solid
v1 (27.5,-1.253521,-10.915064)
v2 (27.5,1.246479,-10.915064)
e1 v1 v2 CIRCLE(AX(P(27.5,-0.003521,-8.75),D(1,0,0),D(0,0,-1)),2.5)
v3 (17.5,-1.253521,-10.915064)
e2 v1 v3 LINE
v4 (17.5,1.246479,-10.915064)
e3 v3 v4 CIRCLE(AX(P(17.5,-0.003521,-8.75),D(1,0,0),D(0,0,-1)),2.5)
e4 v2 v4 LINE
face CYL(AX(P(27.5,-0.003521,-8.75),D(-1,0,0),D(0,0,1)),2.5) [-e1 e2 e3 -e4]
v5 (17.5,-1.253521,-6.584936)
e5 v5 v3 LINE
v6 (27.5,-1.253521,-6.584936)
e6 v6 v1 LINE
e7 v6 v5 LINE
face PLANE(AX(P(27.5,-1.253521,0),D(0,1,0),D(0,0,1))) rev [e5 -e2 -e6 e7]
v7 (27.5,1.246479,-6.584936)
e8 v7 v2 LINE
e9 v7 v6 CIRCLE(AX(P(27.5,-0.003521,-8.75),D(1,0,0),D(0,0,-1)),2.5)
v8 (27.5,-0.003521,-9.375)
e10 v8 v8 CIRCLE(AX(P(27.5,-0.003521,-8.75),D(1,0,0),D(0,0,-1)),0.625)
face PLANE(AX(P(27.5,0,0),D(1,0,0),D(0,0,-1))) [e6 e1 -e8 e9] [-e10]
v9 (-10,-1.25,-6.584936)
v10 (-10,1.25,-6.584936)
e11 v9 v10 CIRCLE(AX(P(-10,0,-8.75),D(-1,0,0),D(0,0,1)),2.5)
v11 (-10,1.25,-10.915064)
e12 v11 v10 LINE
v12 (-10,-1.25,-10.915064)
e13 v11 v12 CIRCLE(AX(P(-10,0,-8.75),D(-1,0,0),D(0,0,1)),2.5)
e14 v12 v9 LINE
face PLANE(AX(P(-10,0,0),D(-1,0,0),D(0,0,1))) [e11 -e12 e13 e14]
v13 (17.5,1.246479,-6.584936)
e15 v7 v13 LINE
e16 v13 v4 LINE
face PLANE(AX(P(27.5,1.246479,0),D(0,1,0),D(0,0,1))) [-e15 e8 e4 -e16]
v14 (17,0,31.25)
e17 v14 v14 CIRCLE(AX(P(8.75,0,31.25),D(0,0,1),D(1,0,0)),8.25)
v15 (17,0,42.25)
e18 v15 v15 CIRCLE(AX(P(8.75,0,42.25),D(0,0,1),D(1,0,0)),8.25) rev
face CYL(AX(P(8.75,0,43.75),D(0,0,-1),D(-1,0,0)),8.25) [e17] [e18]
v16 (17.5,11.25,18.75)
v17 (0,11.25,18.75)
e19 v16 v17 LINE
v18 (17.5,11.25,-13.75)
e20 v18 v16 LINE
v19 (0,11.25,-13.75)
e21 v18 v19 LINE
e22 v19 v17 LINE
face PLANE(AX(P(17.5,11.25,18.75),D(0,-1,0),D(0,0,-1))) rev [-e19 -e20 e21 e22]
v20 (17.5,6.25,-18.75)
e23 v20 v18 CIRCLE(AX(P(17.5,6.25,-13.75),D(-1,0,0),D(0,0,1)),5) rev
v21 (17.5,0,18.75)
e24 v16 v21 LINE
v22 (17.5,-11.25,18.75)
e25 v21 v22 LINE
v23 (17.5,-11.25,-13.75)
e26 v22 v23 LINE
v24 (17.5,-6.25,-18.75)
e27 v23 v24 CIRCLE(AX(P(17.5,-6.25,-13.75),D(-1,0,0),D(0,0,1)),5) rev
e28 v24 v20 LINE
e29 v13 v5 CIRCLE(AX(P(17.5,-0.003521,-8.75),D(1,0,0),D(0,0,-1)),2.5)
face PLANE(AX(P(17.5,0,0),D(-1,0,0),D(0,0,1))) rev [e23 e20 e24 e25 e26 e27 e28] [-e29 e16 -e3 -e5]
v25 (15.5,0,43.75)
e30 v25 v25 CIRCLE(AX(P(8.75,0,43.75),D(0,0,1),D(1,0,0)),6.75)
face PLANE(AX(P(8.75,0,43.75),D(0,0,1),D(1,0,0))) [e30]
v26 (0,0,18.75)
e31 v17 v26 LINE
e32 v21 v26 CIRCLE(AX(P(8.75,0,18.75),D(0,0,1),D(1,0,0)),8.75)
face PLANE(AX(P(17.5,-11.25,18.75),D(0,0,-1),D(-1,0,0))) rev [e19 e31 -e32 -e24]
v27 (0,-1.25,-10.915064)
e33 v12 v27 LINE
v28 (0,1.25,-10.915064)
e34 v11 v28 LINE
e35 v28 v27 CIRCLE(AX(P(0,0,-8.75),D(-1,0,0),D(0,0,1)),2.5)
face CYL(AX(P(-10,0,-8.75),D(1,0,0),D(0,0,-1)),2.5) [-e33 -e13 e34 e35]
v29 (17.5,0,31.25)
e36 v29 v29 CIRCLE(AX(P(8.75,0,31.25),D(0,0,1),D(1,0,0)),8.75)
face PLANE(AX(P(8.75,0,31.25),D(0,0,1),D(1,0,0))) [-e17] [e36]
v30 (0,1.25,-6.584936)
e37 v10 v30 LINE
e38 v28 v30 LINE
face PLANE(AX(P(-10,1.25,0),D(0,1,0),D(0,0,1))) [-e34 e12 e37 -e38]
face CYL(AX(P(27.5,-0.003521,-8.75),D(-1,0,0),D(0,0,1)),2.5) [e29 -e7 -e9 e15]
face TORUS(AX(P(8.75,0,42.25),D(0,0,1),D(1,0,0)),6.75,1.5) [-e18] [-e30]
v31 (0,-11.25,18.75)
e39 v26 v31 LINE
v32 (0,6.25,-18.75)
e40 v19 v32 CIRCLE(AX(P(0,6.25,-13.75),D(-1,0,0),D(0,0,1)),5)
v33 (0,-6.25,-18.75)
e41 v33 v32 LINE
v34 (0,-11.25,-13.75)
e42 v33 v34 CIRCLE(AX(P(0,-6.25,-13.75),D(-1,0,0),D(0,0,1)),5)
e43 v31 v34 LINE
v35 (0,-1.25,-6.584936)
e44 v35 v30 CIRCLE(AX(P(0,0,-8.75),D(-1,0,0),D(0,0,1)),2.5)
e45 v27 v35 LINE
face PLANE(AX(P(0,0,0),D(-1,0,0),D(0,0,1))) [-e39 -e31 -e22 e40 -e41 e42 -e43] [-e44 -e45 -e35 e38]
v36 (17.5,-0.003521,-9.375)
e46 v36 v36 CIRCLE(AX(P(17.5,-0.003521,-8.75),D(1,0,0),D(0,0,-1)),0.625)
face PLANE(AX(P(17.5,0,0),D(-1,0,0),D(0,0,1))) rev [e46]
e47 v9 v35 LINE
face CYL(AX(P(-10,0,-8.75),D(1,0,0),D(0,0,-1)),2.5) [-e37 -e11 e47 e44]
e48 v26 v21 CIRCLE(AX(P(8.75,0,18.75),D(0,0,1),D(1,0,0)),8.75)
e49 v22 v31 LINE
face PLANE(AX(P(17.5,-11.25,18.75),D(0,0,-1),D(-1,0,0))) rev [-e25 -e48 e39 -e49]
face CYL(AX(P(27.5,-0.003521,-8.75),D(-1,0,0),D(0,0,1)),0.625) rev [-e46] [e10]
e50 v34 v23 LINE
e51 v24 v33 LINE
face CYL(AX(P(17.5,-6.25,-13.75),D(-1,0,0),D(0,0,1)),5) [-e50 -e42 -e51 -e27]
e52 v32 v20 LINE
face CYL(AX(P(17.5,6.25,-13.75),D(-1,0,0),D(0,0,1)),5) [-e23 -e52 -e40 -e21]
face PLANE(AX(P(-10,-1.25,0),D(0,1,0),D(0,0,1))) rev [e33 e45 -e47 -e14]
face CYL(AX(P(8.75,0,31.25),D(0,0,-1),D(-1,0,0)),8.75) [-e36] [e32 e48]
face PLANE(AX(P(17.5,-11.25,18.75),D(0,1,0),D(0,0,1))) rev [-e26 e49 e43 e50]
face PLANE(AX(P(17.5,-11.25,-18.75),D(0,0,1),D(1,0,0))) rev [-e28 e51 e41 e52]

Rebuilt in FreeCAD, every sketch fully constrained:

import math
import FreeCAD as App
import Part
import Sketcher

V = App.Vector
Q = App.Units.Quantity


def edges_at(feature, points):
    """Names of the edges that pass closest to the given points."""
    edges = feature.Shape.Edges
    near = lambda p: min(range(len(edges)), key=lambda i: edges[i].distToShape(Part.Vertex(*p))[0])
    return sorted({f"Edge{near(p) + 1}" for p in points})

doc = App.newDocument("Part")
params = doc.addObject("Spreadsheet::Sheet", "Params")
for row, (alias, value) in enumerate([
    ("sketch1_width", "22.5 mm"),
    ("sketch1_height", "37.5 mm"),
    ("pad1_length", "17.5 mm"),
    ("sketch2_radius", "2.5 mm"),
    ("sketch2_diameter", "1.25 mm"),
    ("pad2_length", "10 mm"),
    ("sketch3_diameter", "17.5 mm"),
    ("pad3_length", "12.5 mm"),
    ("sketch4_diameter", "16.5 mm"),
    ("pad4_length", "12.5 mm"),
    ("fillet_radius", "1.5 mm"),
    ("fillet2_radius", "5 mm"),
    ("sketch5_radius", "2.5 mm"),
    ("pad5_length", "10 mm"),
], start=1):
    params.set(f"A{row}", alias)
    params.set(f"B{row}", "=" + value)
    params.setAlias(f"B{row}", alias)

body = doc.addObject("PartDesign::Body", "Body")

# Sketch on YZ plane
sketch1 = body.newObject("Sketcher::SketchObject", "Sketch")
sketch1.AttachmentSupport = (doc.getObject("YZ_Plane"), [""])
sketch1.MapMode = "FlatFace"
sketch1.addGeometry(Part.LineSegment(V(11.25, 18.75, 0), V(-11.25, 18.75, 0)), False)
sketch1.addGeometry(Part.LineSegment(V(-11.25, 18.75, 0), V(-11.25, -18.75, 0)), False)
sketch1.addGeometry(Part.LineSegment(V(-11.25, -18.75, 0), V(11.25, -18.75, 0)), False)
sketch1.addGeometry(Part.LineSegment(V(11.25, -18.75, 0), V(11.25, 18.75, 0)), False)
sketch1.addConstraint(Sketcher.Constraint("Coincident", 0, 2, 1, 1))
sketch1.addConstraint(Sketcher.Constraint("Coincident", 1, 2, 2, 1))
sketch1.addConstraint(Sketcher.Constraint("Coincident", 2, 2, 3, 1))
sketch1.addConstraint(Sketcher.Constraint("Coincident", 3, 2, 0, 1))
sketch1.addConstraint(Sketcher.Constraint("Horizontal", 0))
sketch1.addConstraint(Sketcher.Constraint("Vertical", 1))
sketch1.addConstraint(Sketcher.Constraint("Horizontal", 2))
sketch1.addConstraint(Sketcher.Constraint("Vertical", 3))
sketch1.addConstraint(Sketcher.Constraint("Symmetric", 0, 2, 2, 2, -1, 1))
sketch1.addConstraint(Sketcher.Constraint("DistanceX", 0, 2, 0, 1, Q("22.5 mm")))
sketch1.addConstraint(Sketcher.Constraint("DistanceY", 1, 2, 1, 1, Q("37.5 mm")))
sketch1.setExpression("Constraints[9]", "Params.sketch1_width")
sketch1.setExpression("Constraints[10]", "Params.sketch1_height")
pad1 = body.newObject("PartDesign::Pad", "Pad")
pad1.Profile = sketch1
pad1.setExpression("Length", "Params.pad1_length")

# Sketch on YZ plane
sketch2 = body.newObject("Sketcher::SketchObject", "Sketch001")
sketch2.AttachmentSupport = (doc.getObject("YZ_Plane"), [""])
sketch2.MapMode = "FlatFace"
sketch2.AttachmentOffset = App.Placement(V(0, 0, 17.5), App.Rotation())
sketch2.addGeometry(Part.LineSegment(V(1.246479, -10.915064, 0), V(1.246479, -6.584936, 0)), False)
sketch2.addGeometry(Part.ArcOfCircle(Part.Circle(V(-0.003521, -8.75, 0), V(0, 0, 1), 2.5), math.radians(60), math.radians(120)), False)
sketch2.addGeometry(Part.LineSegment(V(-1.253521, -6.584936, 0), V(-1.253521, -10.915064, 0)), False)
sketch2.addGeometry(Part.ArcOfCircle(Part.Circle(V(-0.003521, -8.75, 0), V(0, 0, 1), 2.5), math.radians(-120), math.radians(-60)), False)
sketch2.addGeometry(Part.Circle(V(-0.003521, -8.75, 0), V(0, 0, 1), 0.625), False)
sketch2.addConstraint(Sketcher.Constraint("Coincident", 0, 2, 1, 1))
sketch2.addConstraint(Sketcher.Constraint("Coincident", 1, 2, 2, 1))
sketch2.addConstraint(Sketcher.Constraint("Coincident", 2, 2, 3, 1))
sketch2.addConstraint(Sketcher.Constraint("Coincident", 3, 2, 0, 1))
sketch2.addConstraint(Sketcher.Constraint("Vertical", 0))
sketch2.addConstraint(Sketcher.Constraint("Vertical", 2))
sketch2.addConstraint(Sketcher.Constraint("Coincident", 3, 3, 1, 3))
sketch2.addConstraint(Sketcher.Constraint("Coincident", 4, 3, 1, 3))
sketch2.addConstraint(Sketcher.Constraint("Equal", 1, 3))
sketch2.addConstraint(Sketcher.Constraint("Horizontal", 0, 2, 1, 2))
sketch2.addConstraint(Sketcher.Constraint("Radius", 1, Q("2.5 mm")))
sketch2.addConstraint(Sketcher.Constraint("Diameter", 4, Q("1.25 mm")))
sketch2.addConstraint(Sketcher.Constraint("DistanceX", 1, 2, 0, 2, Q("2.5 mm")))
sketch2.addConstraint(Sketcher.Constraint("DistanceY", 1, 3, -1, 1, Q("8.75 mm")))
sketch2.addConstraint(Sketcher.Constraint("DistanceX", 1, 3, -1, 1, Q("0.003521 mm")))
sketch2.setExpression("Constraints[10]", "Params.sketch2_radius")
sketch2.setExpression("Constraints[11]", "Params.sketch2_diameter")
pad2 = body.newObject("PartDesign::Pad", "Pad001")
pad2.Profile = sketch2
pad2.setExpression("Length", "Params.pad2_length")

# Sketch on XY plane
sketch3 = body.newObject("Sketcher::SketchObject", "Sketch002")
sketch3.AttachmentSupport = (doc.getObject("XY_Plane"), [""])
sketch3.MapMode = "FlatFace"
sketch3.AttachmentOffset = App.Placement(V(0, 0, 18.75), App.Rotation())
sketch3.addGeometry(Part.Circle(V(8.75, 0, 0), V(0, 0, 1), 8.75), False)
sketch3.addConstraint(Sketcher.Constraint("PointOnObject", 0, 3, -1))
sketch3.addConstraint(Sketcher.Constraint("Diameter", 0, Q("17.5 mm")))
sketch3.addConstraint(Sketcher.Constraint("DistanceX", -1, 1, 0, 3, Q("8.75 mm")))
sketch3.setExpression("Constraints[1]", "Params.sketch3_diameter")
pad3 = body.newObject("PartDesign::Pad", "Pad002")
pad3.Profile = sketch3
pad3.setExpression("Length", "Params.pad3_length")

# Sketch on XY plane
sketch4 = body.newObject("Sketcher::SketchObject", "Sketch003")
sketch4.AttachmentSupport = (doc.getObject("XY_Plane"), [""])
sketch4.MapMode = "FlatFace"
sketch4.AttachmentOffset = App.Placement(V(0, 0, 31.25), App.Rotation())
sketch4.addGeometry(Part.Circle(V(8.75, 0, 0), V(0, 0, 1), 8.25), False)
sketch4.addConstraint(Sketcher.Constraint("PointOnObject", 0, 3, -1))
sketch4.addConstraint(Sketcher.Constraint("Diameter", 0, Q("16.5 mm")))
sketch4.addConstraint(Sketcher.Constraint("DistanceX", -1, 1, 0, 3, Q("8.75 mm")))
sketch4.setExpression("Constraints[1]", "Params.sketch4_diameter")
pad4 = body.newObject("PartDesign::Pad", "Pad003")
pad4.Profile = sketch4
pad4.setExpression("Length", "Params.pad4_length")
doc.recompute()

fillet = body.newObject("PartDesign::Fillet", "Fillet")
fillet.Base = (pad4, edges_at(pad4, [(0.5, 0, 43.75)]))
fillet.setExpression("Radius", "Params.fillet_radius")
doc.recompute()

fillet2 = body.newObject("PartDesign::Fillet", "Fillet001")
fillet2.Base = (fillet, edges_at(fillet, [(8.75, -11.25, -18.75), (8.75, 11.25, -18.75)]))
fillet2.setExpression("Radius", "Params.fillet2_radius")

# Sketch on YZ plane
sketch5 = body.newObject("Sketcher::SketchObject", "Sketch004")
sketch5.AttachmentSupport = (doc.getObject("YZ_Plane"), [""])
sketch5.MapMode = "FlatFace"
sketch5.addGeometry(Part.ArcOfCircle(Part.Circle(V(0, -8.75, 0), V(0, 0, 1), 2.5), math.radians(-90), math.radians(-60)), False)
sketch5.addGeometry(Part.ArcOfCircle(Part.Circle(V(0, -8.75, 0), V(0, 0, 1), 2.5), math.radians(-120), math.radians(-90)), False)
sketch5.addGeometry(Part.LineSegment(V(-1.25, -10.915064, 0), V(-1.25, -6.584936, 0)), False)
sketch5.addGeometry(Part.ArcOfCircle(Part.Circle(V(0, -8.75, 0), V(0, 0, 1), 2.5), math.radians(90), math.radians(120)), False)
sketch5.addGeometry(Part.ArcOfCircle(Part.Circle(V(0, -8.75, 0), V(0, 0, 1), 2.5), math.radians(60), math.radians(90)), False)
sketch5.addGeometry(Part.LineSegment(V(1.25, -6.584936, 0), V(1.25, -10.915064, 0)), False)
sketch5.addConstraint(Sketcher.Constraint("Tangent", 0, 1, 1, 2))
sketch5.addConstraint(Sketcher.Constraint("Coincident", 1, 1, 2, 1))
sketch5.addConstraint(Sketcher.Constraint("Coincident", 2, 2, 3, 2))
sketch5.addConstraint(Sketcher.Constraint("Tangent", 3, 1, 4, 2))
sketch5.addConstraint(Sketcher.Constraint("Coincident", 4, 1, 5, 1))
sketch5.addConstraint(Sketcher.Constraint("Coincident", 5, 2, 0, 2))
sketch5.addConstraint(Sketcher.Constraint("Vertical", 2))
sketch5.addConstraint(Sketcher.Constraint("Vertical", 5))
sketch5.addConstraint(Sketcher.Constraint("Coincident", 3, 3, 0, 3))
sketch5.addConstraint(Sketcher.Constraint("Equal", 0, 1))
sketch5.addConstraint(Sketcher.Constraint("Equal", 1, 3))
sketch5.addConstraint(Sketcher.Constraint("Equal", 3, 4))
sketch5.addConstraint(Sketcher.Constraint("Symmetric", 2, 2, 4, 1, -2))
sketch5.addConstraint(Sketcher.Constraint("PointOnObject", 0, 1, -2))
sketch5.addConstraint(Sketcher.Constraint("PointOnObject", 3, 1, -2))
sketch5.addConstraint(Sketcher.Constraint("Radius", 0, Q("2.5 mm")))
sketch5.addConstraint(Sketcher.Constraint("DistanceX", 2, 2, 4, 1, Q("2.5 mm")))
sketch5.addConstraint(Sketcher.Constraint("DistanceY", 0, 3, -1, 1, Q("8.75 mm")))
sketch5.setExpression("Constraints[15]", "Params.sketch5_radius")
pad5 = body.newObject("PartDesign::Pad", "Pad004")
pad5.Profile = sketch5
pad5.setExpression("Length", "Params.pad5_length")
pad5.Reversed = True

doc.recompute()
